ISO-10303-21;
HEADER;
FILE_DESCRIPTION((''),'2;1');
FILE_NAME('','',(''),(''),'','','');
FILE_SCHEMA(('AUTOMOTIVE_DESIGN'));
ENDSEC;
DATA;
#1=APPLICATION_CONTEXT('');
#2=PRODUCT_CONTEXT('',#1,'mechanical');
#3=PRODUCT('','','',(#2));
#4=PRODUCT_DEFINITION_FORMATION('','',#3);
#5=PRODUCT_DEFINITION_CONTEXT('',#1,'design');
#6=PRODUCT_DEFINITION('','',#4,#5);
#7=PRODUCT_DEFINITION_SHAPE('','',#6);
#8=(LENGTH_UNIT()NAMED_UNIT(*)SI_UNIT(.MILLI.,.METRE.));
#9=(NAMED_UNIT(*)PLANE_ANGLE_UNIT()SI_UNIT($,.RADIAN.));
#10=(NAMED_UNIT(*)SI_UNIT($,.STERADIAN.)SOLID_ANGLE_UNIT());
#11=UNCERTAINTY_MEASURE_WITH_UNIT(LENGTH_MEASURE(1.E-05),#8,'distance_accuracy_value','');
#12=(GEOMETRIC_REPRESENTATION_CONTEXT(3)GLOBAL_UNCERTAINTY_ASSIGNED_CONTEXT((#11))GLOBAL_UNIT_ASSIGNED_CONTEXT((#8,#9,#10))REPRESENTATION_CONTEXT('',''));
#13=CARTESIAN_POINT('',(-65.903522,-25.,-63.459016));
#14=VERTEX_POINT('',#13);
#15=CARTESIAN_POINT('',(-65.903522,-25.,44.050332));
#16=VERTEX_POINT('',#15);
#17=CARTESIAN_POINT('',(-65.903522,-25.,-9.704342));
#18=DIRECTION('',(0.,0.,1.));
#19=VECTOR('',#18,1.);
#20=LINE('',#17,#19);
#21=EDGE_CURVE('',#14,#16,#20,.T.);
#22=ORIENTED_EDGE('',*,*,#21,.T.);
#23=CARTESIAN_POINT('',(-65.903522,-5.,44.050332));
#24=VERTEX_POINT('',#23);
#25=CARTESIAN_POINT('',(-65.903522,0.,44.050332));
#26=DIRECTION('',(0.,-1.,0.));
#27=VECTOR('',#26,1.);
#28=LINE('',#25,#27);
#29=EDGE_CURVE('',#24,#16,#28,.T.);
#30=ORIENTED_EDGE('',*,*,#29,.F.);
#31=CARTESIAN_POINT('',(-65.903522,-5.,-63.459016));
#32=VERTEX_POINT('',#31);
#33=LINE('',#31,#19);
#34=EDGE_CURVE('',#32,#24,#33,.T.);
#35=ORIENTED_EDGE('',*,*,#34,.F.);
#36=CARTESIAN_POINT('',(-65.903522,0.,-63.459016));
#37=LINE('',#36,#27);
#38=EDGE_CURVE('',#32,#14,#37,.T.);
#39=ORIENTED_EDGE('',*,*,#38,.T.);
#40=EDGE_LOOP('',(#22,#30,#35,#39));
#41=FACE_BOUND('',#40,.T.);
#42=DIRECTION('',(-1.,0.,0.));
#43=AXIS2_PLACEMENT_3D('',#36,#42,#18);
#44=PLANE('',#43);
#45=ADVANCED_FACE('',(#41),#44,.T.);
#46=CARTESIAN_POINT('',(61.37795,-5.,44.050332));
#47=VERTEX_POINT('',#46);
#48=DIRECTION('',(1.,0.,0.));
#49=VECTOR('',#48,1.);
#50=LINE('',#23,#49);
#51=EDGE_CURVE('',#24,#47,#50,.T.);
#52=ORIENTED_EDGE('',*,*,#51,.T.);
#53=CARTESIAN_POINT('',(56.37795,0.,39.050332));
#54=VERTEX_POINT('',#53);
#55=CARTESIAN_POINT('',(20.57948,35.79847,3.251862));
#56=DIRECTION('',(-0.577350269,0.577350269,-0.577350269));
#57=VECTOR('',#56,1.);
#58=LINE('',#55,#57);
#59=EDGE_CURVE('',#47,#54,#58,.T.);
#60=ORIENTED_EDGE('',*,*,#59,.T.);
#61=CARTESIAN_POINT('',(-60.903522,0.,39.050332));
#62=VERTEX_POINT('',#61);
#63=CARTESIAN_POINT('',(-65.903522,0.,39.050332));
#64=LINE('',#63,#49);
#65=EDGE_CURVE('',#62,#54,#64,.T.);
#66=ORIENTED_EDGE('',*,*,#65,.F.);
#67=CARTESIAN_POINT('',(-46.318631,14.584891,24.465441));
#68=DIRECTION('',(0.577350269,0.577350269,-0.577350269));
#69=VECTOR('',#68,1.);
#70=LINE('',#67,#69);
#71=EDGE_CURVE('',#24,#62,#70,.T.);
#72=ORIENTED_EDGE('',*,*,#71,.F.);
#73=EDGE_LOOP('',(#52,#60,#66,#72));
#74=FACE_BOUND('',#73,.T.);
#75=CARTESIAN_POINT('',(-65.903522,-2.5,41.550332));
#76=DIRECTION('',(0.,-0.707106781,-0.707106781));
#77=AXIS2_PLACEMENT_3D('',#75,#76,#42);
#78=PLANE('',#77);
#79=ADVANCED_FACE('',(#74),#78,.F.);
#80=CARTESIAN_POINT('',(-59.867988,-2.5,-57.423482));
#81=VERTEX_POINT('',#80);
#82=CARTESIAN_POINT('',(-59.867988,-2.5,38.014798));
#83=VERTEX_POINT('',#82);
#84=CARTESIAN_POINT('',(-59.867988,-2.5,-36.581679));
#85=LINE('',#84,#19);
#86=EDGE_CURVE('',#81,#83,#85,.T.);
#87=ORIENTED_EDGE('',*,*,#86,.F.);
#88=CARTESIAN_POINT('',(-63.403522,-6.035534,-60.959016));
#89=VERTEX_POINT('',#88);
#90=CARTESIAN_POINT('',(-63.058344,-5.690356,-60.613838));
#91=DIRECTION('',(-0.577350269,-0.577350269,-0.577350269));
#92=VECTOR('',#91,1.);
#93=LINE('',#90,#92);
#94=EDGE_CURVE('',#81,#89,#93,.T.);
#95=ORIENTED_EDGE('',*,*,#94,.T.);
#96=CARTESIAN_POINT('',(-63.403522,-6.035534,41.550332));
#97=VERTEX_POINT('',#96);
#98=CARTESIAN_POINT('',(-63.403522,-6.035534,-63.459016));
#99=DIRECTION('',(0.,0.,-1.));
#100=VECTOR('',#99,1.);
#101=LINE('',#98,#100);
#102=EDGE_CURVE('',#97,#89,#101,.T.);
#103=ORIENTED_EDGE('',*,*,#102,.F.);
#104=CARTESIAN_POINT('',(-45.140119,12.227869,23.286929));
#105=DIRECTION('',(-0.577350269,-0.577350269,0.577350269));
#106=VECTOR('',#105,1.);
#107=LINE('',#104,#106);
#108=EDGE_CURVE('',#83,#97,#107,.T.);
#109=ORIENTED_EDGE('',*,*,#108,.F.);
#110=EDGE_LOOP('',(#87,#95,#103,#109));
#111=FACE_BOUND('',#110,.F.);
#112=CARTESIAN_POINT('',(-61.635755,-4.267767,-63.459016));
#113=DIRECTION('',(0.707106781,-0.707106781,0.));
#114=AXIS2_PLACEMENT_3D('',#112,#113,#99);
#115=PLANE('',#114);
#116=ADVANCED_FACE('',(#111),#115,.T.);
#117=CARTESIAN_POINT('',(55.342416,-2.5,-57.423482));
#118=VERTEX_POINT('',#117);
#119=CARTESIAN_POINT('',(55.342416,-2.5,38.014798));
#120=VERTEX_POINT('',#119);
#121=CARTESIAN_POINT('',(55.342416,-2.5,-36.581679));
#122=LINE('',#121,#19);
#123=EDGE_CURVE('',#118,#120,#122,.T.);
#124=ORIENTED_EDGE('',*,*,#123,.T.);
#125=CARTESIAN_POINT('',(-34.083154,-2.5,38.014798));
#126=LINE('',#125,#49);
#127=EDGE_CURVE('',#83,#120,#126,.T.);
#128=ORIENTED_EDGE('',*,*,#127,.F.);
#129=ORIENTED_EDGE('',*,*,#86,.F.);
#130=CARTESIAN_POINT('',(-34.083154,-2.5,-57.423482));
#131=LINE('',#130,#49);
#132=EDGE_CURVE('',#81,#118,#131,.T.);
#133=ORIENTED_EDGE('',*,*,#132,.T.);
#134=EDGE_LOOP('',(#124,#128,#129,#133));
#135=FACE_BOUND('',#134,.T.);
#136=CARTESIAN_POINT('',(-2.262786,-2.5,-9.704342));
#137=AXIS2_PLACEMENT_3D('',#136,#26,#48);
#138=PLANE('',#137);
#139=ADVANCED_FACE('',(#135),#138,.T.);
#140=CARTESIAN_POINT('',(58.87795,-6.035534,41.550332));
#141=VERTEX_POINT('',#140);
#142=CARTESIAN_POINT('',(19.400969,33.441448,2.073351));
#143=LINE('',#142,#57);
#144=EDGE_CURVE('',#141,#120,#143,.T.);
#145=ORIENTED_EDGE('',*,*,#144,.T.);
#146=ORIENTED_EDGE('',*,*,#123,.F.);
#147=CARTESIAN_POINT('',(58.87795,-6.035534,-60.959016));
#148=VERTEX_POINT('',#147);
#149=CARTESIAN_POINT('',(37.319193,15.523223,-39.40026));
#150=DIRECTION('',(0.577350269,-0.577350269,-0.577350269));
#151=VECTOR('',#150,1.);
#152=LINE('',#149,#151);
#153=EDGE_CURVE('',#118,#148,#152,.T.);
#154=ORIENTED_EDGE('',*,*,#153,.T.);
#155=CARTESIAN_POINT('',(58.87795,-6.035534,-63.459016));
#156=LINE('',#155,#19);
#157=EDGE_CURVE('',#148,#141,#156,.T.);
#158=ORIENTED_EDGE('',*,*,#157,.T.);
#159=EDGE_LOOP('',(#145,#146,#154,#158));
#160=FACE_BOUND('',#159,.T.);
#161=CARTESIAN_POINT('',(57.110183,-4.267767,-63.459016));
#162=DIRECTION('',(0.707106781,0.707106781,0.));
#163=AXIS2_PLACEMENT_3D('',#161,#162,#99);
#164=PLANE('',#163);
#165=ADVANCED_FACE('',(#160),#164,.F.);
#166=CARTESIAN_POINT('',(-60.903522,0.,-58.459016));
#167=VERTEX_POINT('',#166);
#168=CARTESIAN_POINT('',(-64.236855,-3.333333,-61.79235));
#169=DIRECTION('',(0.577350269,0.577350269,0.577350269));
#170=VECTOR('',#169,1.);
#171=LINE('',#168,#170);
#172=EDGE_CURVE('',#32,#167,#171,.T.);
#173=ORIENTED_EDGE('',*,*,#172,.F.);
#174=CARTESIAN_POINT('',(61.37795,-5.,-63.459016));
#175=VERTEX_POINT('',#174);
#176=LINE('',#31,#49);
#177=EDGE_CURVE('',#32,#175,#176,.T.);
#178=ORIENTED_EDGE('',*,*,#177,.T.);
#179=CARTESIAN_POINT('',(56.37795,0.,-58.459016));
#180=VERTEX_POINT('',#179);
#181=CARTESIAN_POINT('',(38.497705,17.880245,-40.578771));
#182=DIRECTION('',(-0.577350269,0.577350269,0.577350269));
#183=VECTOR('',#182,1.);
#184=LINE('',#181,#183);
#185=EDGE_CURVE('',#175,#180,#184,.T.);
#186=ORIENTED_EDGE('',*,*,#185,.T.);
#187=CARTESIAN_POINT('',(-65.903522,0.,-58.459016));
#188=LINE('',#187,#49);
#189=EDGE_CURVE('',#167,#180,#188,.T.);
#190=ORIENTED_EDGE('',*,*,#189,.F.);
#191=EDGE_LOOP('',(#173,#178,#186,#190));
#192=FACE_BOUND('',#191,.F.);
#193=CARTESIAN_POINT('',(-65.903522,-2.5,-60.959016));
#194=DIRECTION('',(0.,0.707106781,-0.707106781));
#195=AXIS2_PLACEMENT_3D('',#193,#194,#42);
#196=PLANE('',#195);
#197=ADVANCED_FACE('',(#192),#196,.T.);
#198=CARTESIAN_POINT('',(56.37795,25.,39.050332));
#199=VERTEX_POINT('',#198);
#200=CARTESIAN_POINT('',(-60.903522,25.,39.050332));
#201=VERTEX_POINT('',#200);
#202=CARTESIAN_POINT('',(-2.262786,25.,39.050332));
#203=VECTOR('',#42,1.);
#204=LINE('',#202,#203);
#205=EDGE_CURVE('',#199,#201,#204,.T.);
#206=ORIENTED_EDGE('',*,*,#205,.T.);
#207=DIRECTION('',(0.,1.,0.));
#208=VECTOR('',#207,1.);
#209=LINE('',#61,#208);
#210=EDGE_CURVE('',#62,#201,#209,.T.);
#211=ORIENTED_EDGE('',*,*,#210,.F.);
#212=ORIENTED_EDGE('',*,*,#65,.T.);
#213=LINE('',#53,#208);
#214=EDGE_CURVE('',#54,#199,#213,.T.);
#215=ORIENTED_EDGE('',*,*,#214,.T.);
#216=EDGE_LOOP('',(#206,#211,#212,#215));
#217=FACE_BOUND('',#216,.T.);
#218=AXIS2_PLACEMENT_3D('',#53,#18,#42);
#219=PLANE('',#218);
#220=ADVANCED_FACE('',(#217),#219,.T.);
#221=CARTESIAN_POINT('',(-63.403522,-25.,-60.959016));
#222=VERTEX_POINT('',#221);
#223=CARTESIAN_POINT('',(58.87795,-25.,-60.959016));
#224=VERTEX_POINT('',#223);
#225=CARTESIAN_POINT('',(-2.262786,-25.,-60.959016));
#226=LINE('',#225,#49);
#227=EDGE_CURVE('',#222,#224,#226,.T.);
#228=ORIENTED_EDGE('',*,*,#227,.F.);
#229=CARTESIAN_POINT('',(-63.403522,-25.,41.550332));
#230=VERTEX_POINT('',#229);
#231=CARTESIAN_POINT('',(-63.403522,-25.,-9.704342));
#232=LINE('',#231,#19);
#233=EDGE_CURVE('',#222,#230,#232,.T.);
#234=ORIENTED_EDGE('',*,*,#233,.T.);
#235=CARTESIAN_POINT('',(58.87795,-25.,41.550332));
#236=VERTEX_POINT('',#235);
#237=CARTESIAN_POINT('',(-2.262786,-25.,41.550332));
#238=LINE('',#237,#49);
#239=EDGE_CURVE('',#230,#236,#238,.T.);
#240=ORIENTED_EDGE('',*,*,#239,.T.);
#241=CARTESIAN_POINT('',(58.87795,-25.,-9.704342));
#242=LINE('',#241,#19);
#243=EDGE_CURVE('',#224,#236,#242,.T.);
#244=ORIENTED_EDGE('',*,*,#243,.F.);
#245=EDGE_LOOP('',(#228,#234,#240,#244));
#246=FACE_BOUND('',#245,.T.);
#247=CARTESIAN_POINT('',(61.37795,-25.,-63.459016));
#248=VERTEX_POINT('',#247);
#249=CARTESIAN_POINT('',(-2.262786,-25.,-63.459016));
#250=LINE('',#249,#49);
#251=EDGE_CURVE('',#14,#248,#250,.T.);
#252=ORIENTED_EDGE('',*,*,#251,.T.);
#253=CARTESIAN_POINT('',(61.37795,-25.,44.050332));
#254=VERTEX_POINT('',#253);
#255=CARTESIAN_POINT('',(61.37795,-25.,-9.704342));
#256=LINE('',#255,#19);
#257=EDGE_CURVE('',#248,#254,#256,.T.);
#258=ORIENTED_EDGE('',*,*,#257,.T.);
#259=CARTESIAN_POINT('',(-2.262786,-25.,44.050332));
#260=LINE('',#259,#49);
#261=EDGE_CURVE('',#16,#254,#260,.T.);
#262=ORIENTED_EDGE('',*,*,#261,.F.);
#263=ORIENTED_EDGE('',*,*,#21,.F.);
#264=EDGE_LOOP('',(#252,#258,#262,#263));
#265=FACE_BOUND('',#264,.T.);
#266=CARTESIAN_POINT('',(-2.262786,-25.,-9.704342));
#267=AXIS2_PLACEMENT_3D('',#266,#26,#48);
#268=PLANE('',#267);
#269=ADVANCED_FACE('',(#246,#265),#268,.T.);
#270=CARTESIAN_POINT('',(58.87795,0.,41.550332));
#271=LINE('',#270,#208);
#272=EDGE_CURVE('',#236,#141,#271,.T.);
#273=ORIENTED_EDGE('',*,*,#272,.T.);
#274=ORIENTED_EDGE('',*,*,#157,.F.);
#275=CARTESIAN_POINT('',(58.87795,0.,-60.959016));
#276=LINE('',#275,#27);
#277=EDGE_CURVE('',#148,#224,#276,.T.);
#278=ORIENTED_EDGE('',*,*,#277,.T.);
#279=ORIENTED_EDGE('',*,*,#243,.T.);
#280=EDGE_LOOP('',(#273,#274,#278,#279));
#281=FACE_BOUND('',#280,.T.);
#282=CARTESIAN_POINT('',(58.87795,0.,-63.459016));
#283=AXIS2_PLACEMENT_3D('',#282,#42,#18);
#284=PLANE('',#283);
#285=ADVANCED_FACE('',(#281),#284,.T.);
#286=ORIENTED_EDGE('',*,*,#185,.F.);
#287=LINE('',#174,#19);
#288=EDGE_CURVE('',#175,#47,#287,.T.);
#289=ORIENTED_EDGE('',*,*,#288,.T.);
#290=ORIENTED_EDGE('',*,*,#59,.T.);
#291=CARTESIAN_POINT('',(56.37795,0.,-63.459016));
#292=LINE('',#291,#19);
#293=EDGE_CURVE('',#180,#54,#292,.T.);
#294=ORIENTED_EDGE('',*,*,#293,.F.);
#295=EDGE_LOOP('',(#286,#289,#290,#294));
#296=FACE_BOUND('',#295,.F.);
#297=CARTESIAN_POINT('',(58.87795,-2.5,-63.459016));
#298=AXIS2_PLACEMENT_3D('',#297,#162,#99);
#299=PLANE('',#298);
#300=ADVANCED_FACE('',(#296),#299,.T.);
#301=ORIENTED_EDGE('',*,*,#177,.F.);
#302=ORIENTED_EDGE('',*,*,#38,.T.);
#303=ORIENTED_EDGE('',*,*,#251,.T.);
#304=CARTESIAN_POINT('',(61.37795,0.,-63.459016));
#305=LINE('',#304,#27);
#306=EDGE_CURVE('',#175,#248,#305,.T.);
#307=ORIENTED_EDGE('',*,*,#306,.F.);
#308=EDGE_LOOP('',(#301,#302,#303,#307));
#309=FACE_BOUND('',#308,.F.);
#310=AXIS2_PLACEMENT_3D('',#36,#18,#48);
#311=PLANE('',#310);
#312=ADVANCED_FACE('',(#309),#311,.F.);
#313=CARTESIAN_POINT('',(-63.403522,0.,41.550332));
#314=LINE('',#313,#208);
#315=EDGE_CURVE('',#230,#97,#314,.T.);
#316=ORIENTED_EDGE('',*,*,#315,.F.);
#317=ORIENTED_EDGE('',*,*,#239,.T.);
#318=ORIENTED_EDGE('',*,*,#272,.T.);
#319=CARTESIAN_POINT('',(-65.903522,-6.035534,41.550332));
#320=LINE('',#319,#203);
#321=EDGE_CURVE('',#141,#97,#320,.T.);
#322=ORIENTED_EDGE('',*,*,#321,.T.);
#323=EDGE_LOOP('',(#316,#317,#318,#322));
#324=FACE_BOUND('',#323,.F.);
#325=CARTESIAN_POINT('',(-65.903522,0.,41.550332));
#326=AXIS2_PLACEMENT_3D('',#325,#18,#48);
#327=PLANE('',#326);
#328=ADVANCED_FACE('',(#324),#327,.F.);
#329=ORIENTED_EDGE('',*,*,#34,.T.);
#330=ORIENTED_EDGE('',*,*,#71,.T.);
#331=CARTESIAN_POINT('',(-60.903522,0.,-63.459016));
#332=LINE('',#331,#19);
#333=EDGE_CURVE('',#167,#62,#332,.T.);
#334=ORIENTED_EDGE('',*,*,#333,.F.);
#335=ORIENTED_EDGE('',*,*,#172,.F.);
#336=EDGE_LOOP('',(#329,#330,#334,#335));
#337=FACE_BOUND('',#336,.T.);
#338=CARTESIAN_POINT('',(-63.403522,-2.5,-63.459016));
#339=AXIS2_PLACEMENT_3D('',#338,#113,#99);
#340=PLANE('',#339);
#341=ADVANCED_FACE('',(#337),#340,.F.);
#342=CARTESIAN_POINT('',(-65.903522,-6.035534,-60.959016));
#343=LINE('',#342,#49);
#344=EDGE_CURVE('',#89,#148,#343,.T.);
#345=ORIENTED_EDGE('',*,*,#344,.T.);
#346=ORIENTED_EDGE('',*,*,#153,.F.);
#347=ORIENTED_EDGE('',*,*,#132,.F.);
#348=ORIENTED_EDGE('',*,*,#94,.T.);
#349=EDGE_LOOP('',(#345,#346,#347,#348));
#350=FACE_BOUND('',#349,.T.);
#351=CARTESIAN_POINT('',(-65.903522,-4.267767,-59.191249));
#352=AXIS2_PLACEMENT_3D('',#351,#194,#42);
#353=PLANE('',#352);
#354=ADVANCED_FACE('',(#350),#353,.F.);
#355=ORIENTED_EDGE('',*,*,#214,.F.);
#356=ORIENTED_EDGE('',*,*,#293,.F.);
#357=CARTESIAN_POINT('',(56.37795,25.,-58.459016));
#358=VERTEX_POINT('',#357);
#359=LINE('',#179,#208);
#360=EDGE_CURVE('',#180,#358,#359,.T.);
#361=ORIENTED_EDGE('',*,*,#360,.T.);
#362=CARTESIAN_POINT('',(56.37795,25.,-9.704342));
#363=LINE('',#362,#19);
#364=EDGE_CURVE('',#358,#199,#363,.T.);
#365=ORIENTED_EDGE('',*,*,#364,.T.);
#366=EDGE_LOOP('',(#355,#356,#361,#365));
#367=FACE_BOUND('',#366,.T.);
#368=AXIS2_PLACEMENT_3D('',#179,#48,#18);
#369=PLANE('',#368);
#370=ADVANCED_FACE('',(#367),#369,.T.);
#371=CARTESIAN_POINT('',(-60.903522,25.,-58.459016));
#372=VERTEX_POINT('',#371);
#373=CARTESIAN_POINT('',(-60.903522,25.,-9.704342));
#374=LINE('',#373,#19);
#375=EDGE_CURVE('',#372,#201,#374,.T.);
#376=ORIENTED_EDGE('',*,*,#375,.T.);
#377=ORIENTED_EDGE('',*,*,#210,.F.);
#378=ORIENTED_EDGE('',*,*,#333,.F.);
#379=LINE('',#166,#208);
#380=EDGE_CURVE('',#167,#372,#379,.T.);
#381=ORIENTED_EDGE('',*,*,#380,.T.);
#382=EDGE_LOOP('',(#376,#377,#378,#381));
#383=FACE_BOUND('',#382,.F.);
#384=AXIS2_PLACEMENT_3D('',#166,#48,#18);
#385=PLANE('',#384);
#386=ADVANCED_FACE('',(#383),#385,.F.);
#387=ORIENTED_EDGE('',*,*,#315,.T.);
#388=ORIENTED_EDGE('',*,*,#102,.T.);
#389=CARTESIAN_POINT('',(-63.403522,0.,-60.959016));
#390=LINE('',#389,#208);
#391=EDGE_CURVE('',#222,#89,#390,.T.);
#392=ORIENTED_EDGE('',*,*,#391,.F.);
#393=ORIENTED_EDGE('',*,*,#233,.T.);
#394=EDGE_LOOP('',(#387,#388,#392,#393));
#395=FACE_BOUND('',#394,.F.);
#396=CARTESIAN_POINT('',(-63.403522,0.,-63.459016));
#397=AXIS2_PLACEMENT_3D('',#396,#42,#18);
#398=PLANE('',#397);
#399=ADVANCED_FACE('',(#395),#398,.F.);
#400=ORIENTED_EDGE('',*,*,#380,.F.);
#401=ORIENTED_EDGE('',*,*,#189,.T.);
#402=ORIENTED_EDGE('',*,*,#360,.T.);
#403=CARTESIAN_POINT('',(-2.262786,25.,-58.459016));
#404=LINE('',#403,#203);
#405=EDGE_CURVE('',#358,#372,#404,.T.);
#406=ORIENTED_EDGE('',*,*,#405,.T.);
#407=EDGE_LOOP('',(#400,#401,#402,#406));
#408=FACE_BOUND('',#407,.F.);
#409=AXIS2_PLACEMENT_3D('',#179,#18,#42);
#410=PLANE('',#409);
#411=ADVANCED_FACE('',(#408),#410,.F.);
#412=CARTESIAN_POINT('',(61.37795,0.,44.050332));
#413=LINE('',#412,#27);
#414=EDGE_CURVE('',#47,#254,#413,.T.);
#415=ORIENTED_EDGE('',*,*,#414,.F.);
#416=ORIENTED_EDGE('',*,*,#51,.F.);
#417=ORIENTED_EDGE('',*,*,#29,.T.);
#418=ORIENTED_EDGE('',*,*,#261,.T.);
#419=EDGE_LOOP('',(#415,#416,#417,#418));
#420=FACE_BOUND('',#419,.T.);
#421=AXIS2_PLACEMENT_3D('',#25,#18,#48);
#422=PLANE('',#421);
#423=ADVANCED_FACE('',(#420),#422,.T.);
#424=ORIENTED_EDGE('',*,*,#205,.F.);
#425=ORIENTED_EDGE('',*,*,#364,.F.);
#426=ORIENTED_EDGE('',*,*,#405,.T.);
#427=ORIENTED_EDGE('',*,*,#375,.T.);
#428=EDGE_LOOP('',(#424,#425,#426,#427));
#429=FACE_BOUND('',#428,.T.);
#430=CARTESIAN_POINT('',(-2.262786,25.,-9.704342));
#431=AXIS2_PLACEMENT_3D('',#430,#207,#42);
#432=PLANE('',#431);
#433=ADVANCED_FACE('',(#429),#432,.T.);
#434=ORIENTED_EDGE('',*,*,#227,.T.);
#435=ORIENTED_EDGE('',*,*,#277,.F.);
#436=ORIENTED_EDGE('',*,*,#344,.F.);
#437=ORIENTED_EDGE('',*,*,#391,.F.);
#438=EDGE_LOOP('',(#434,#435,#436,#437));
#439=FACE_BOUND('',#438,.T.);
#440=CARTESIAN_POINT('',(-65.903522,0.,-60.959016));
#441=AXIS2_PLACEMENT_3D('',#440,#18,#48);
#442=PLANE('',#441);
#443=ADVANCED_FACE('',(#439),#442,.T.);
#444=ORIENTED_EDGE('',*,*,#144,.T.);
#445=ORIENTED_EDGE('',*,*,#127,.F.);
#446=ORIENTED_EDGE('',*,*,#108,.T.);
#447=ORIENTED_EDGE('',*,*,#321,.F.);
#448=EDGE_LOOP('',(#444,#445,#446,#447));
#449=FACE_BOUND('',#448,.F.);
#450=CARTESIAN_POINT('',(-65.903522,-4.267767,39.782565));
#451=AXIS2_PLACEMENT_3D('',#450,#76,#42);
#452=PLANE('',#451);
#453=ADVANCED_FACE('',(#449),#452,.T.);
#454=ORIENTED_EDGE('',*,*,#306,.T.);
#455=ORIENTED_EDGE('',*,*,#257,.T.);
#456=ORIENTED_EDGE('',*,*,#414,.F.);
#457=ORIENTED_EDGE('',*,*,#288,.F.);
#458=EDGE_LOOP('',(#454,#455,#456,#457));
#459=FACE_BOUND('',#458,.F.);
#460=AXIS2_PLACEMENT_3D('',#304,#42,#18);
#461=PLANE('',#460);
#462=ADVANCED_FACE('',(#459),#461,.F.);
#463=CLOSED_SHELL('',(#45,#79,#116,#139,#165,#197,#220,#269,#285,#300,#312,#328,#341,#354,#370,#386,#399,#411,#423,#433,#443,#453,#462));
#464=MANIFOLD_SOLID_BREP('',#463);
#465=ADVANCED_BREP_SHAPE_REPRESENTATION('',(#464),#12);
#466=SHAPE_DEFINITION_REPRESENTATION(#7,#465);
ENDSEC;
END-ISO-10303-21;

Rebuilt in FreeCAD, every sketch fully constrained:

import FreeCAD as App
import Part
import Sketcher

V = App.Vector


def edges_at(feature, points):
    """Names of the edges that pass closest to the given points."""
    edges = feature.Shape.Edges
    near = lambda p: min(range(len(edges)), key=lambda i: edges[i].distToShape(Part.Vertex(*p))[0])
    return sorted({f"Edge{near(p) + 1}" for p in points})


def faces_at(feature, points):
    """Names of the faces that lie closest to the given points."""
    faces = feature.Shape.Faces
    near = lambda p: min(range(len(faces)), key=lambda i: faces[i].distToShape(Part.Vertex(*p))[0])
    return sorted({f"Face{near(p) + 1}" for p in points})


def add_polygon(sketch, points):
    """Adds a closed chain of lines whose ends are joined by coincident constraints."""
    first, n = sketch.GeometryCount, len(points)
    for a, b in zip(points, points[1:] + points[:1]):
        sketch.addGeometry(Part.LineSegment(App.Vector(*a, 0), App.Vector(*b, 0)), False)
    for i in range(n):
        sketch.addConstraint(Sketcher.Constraint("Coincident", first + i, 2, first + (i + 1) % n, 1))

doc = App.newDocument("Part")
body = doc.addObject("PartDesign::Body", "Body")

# Sketch on XZ plane
sketch1 = doc.addObject("Sketcher::SketchObject", "Sketch")
body.addObject(sketch1)
sketch1.AttachmentSupport = (doc.XZ_Plane, [""])
sketch1.MapMode = "FlatFace"
add_polygon(sketch1, [(-65.903522, 44.050332), (-65.903522, -63.459016), (61.37795, -63.459016), (61.37795, 44.050332)])  # lines 0-3
sketch1.addConstraint(Sketcher.Constraint("Vertical", 0))
sketch1.addConstraint(Sketcher.Constraint("Horizontal", 1))
sketch1.addConstraint(Sketcher.Constraint("Vertical", 2))
sketch1.addConstraint(Sketcher.Constraint("Horizontal", 3))
sketch1.addConstraint(Sketcher.Constraint("DistanceY", 0, 2, 0, 1, 107.509349))
sketch1.addConstraint(Sketcher.Constraint("DistanceX", 1, 1, 1, 2, 127.281472))
sketch1.addConstraint(Sketcher.Constraint("DistanceX", -1, 1, 1, 2, 61.37795))
sketch1.addConstraint(Sketcher.Constraint("DistanceY", 0, 2, -1, 1, 63.459016))
pad1 = doc.addObject("PartDesign::Pad", "Pad")
body.addObject(pad1)
pad1.Profile = sketch1
pad1.Length = 25
doc.recompute()

chamfer = doc.addObject("PartDesign::Chamfer", "Chamfer")
body.addObject(chamfer)
chamfer.Base = (pad1, edges_at(pad1, [
    (61.378, 0, -9.704),
    (-2.263, 0, -63.459),
    (-65.904, 0, -9.704),
    (-2.263, 0, 44.05),
]))
chamfer.Size = 5
doc.recompute()

thickness = doc.addObject("PartDesign::Thickness", "Thickness")
body.addObject(thickness)
thickness.Base = (chamfer, faces_at(chamfer, [(-2.263, -25, -9.704)]))
thickness.Value = 2.5
thickness.Reversed = True
thickness.Join = "Arc"

# Sketch on XZ plane
sketch2 = doc.addObject("Sketcher::SketchObject", "Sketch001")
body.addObject(sketch2)
sketch2.AttachmentSupport = (doc.XZ_Plane, [""])
sketch2.MapMode = "FlatFace"
add_polygon(sketch2, [(56.37795, 39.050332), (56.37795, -58.459016), (-60.903522, -58.459016), (-60.903522, 39.050332)])  # lines 0-3
sketch2.addConstraint(Sketcher.Constraint("Vertical", 0))
sketch2.addConstraint(Sketcher.Constraint("Horizontal", 1))
sketch2.addConstraint(Sketcher.Constraint("Vertical", 2))
sketch2.addConstraint(Sketcher.Constraint("Horizontal", 3))
sketch2.addConstraint(Sketcher.Constraint("DistanceY", 0, 2, 0, 1, 97.509349))
sketch2.addConstraint(Sketcher.Constraint("DistanceX", 1, 2, 1, 1, 117.281472))
sketch2.addConstraint(Sketcher.Constraint("DistanceX", -1, 1, 0, 2, 56.37795))
sketch2.addConstraint(Sketcher.Constraint("DistanceY", 0, 2, -1, 1, 58.459016))
pad2 = doc.addObject("PartDesign::Pad", "Pad001")
body.addObject(pad2)
pad2.Profile = sketch2
pad2.Length = 25
pad2.Reversed = True

doc.recompute()
